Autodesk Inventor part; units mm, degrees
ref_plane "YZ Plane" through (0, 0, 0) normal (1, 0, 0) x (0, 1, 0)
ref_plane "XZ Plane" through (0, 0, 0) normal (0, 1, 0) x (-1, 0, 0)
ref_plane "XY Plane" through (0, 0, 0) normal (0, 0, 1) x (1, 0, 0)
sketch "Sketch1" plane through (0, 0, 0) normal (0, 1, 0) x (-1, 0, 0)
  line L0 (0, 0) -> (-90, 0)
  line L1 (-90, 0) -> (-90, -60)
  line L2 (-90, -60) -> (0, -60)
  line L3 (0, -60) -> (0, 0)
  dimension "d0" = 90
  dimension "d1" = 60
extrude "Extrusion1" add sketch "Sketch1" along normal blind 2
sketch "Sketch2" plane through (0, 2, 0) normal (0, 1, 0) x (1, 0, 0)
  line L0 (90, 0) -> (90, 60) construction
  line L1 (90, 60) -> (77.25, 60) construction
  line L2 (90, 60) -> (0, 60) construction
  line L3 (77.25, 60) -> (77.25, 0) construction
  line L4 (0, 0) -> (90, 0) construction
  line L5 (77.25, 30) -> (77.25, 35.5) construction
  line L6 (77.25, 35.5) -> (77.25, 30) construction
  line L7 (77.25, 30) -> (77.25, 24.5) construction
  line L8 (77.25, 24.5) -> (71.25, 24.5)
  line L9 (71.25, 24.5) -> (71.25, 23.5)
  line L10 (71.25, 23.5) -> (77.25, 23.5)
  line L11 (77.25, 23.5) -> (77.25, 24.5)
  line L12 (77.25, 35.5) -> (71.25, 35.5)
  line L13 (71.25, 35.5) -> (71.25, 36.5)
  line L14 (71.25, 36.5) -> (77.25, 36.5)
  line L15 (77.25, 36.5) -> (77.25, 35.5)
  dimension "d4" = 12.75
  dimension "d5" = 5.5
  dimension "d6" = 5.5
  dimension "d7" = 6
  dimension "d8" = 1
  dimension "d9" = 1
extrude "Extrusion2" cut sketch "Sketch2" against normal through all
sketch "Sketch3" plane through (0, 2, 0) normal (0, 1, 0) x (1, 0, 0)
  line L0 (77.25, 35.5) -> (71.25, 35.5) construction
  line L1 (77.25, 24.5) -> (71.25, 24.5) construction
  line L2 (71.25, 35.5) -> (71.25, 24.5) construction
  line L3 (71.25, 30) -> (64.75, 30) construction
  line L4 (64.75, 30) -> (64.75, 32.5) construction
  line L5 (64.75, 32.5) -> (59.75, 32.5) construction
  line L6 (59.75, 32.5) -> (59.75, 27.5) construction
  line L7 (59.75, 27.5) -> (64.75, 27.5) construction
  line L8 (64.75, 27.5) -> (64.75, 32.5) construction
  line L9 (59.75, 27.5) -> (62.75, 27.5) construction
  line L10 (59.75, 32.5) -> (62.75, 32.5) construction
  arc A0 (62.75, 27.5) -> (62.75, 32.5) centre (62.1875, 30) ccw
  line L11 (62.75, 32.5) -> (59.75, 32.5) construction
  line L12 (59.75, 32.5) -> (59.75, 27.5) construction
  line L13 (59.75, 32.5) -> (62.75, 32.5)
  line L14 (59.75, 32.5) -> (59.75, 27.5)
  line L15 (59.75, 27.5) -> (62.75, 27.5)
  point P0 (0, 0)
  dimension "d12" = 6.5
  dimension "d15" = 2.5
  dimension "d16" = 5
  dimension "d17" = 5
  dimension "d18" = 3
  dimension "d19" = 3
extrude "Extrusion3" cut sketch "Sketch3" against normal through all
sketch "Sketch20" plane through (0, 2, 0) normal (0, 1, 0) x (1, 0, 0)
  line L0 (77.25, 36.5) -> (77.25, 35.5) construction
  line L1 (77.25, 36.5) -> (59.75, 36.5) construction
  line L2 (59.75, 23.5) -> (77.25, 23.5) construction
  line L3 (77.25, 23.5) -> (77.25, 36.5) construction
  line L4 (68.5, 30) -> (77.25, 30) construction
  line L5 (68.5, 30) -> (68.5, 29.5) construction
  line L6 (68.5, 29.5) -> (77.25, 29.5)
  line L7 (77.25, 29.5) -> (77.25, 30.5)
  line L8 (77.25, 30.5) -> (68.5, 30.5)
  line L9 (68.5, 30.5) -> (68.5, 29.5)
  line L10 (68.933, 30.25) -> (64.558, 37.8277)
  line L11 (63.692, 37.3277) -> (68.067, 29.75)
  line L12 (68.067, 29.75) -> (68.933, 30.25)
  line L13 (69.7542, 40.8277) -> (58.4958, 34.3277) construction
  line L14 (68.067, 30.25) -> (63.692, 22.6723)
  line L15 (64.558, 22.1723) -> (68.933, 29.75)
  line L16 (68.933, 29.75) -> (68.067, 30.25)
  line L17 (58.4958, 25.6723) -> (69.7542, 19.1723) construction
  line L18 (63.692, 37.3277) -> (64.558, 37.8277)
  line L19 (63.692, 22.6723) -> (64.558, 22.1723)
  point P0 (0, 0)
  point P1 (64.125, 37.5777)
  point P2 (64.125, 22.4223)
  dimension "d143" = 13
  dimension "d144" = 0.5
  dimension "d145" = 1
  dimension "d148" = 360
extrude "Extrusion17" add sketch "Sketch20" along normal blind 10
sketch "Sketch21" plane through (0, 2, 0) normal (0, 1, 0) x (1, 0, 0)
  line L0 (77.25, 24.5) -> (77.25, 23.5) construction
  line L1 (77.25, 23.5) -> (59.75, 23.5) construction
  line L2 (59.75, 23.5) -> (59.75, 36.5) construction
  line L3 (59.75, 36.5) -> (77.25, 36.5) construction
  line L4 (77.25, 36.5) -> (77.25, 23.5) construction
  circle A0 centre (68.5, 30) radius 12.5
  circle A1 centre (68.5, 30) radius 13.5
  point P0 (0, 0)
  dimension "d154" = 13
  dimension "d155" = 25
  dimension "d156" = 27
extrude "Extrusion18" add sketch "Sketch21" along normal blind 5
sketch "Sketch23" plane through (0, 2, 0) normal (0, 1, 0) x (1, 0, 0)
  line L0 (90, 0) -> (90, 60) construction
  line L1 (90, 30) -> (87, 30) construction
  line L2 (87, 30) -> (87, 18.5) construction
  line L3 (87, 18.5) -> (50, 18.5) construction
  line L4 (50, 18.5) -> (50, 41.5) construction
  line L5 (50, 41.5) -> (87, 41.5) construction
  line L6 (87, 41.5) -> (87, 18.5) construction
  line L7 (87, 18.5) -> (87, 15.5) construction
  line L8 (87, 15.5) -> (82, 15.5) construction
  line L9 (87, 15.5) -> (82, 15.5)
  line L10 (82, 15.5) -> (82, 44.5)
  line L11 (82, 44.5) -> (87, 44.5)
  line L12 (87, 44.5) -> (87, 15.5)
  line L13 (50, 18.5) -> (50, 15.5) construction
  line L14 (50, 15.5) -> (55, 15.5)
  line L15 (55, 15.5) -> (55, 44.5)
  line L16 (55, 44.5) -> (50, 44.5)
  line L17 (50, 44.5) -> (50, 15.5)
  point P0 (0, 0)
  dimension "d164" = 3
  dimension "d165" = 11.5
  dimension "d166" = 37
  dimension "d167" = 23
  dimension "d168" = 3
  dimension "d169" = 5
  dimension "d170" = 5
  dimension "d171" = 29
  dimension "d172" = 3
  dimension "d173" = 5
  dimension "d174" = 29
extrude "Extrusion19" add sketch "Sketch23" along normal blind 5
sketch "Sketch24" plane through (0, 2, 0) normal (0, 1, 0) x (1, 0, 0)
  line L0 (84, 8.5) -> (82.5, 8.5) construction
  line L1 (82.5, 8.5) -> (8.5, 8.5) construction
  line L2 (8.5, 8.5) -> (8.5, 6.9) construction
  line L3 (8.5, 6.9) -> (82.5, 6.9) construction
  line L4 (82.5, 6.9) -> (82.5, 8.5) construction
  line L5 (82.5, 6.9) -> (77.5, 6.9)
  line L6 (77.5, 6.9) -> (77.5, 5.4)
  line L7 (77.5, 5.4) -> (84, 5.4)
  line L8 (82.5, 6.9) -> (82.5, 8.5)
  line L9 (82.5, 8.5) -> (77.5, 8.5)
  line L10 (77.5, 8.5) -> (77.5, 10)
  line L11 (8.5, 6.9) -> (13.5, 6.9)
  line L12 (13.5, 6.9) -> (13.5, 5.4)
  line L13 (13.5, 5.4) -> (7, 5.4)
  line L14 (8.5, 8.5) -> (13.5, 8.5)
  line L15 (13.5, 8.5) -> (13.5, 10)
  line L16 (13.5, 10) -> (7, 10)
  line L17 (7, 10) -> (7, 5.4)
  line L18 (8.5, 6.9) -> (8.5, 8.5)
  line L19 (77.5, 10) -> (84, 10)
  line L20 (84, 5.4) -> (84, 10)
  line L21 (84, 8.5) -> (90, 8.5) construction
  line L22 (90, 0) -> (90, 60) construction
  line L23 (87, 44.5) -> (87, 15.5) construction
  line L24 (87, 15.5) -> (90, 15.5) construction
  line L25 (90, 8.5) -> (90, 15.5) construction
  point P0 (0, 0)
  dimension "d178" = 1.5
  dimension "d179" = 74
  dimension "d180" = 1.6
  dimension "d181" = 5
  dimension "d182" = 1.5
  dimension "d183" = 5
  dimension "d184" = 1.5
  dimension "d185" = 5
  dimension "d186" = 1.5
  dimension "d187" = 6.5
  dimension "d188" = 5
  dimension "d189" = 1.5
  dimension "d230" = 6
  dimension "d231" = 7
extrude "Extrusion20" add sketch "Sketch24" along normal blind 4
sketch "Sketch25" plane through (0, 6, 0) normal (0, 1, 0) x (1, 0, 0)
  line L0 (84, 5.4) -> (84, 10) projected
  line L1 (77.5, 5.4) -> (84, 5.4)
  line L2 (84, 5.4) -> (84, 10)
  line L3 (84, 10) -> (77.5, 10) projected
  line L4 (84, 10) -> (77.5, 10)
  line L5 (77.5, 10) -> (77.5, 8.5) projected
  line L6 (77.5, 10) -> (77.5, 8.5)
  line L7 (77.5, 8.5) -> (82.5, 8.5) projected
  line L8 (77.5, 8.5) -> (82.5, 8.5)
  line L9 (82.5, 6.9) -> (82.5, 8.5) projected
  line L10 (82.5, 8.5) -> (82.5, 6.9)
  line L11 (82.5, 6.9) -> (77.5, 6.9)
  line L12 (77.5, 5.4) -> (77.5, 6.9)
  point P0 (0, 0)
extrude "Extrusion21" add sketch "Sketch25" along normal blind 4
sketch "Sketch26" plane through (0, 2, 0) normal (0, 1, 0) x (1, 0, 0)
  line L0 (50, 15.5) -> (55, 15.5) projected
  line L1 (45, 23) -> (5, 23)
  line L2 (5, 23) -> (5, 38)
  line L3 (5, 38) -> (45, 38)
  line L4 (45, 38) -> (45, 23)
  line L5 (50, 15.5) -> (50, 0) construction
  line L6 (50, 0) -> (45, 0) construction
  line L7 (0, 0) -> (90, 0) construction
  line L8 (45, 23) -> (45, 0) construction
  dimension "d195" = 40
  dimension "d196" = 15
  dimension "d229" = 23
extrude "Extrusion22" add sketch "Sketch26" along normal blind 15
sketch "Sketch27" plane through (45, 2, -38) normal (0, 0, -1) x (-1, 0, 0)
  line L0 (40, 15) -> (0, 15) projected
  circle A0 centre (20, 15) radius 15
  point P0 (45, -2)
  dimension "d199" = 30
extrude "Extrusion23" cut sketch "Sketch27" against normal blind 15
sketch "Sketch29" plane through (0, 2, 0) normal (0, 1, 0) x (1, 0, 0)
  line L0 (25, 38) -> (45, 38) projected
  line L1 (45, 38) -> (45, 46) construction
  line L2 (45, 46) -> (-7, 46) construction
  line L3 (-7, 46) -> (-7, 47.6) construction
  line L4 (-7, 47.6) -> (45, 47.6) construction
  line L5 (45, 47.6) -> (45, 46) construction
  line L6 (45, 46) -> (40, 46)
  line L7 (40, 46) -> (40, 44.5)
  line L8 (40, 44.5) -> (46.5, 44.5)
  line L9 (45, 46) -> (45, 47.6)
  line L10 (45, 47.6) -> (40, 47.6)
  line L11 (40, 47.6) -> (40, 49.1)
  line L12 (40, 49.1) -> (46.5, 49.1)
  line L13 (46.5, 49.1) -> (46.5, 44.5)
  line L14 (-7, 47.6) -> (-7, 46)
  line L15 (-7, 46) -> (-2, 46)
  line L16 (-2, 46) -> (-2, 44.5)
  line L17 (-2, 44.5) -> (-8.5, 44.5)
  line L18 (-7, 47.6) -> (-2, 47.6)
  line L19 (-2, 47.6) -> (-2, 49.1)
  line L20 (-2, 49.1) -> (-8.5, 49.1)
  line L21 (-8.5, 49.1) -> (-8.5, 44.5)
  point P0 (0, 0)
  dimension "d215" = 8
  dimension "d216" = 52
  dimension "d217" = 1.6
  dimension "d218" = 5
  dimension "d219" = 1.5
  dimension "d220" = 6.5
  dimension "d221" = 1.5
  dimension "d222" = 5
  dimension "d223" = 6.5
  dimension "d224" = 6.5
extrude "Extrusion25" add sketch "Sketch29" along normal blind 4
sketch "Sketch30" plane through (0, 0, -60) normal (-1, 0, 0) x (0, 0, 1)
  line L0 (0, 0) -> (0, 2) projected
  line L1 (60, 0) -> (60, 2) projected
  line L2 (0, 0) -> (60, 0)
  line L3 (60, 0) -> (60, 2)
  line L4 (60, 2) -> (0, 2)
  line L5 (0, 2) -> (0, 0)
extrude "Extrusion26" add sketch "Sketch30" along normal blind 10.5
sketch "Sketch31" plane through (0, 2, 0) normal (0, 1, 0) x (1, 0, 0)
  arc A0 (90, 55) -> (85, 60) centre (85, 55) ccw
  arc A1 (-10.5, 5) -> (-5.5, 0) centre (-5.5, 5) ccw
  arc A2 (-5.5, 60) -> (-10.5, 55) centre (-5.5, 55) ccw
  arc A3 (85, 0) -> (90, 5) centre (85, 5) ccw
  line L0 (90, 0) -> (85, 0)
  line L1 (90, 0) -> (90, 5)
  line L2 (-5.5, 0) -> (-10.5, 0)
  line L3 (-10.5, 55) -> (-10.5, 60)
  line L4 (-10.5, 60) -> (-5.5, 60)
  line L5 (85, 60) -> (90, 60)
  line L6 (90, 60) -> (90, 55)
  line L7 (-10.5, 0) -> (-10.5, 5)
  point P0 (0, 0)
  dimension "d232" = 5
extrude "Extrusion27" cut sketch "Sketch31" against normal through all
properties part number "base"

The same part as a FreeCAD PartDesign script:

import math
import FreeCAD as App
import Part
import Sketcher

doc = App.newDocument("Part")
params = doc.addObject("Spreadsheet::Sheet", "Params")
for row, (alias, value) in enumerate([
    ("sketch1_width", "90 mm"),
    ("sketch1_height", "60 mm"),
    ("pad1_length", "2 mm"),
    ("sketch2_width", "6 mm"),
    ("sketch2_height", "1 mm"),
    ("sketch3_width", "3 mm"),
    ("sketch3_height", "5 mm"),
    ("sketch4_height", "1 mm"),
    ("sketch4_length", "1 mm"),
    ("pad2_length", "10 mm"),
    ("sketch5_diameter", "27 mm"),
    ("sketch5_diameter2", "25 mm"),
    ("pad3_length", "5 mm"),
    ("sketch6_width", "5 mm"),
    ("sketch6_height", "29 mm"),
    ("pad4_length", "5 mm"),
    ("sketch7_width", "5 mm"),
    ("sketch7_width2", "6.5 mm"),
    ("sketch7_height", "1.6 mm"),
    ("sketch7_height2", "1.5 mm"),
    ("pad5_length", "4 mm"),
    ("sketch8_width", "5 mm"),
    ("sketch8_width2", "6.5 mm"),
    ("sketch8_height", "4.6 mm"),
    ("sketch8_height2", "1.5 mm"),
    ("pad6_length", "4 mm"),
    ("sketch9_width", "40 mm"),
    ("sketch9_height", "15 mm"),
    ("pad7_length", "15 mm"),
    ("sketch10_diameter", "30 mm"),
    ("pocket3_length", "15 mm"),
    ("sketch11_width", "5 mm"),
    ("sketch11_width2", "6.5 mm"),
    ("sketch11_height", "1.6 mm"),
    ("sketch11_height2", "1.5 mm"),
    ("pad8_length", "4 mm"),
    ("sketch12_width", "2 mm"),
    ("sketch12_height", "60 mm"),
    ("pad9_length", "10.5 mm"),
    ("sketch13_radius", "5 mm"),
], start=1):
    params.set(f"A{row}", alias)
    params.set(f"B{row}", "=" + value)
    params.setAlias(f"B{row}", alias)

body = doc.addObject("PartDesign::Body", "Body")
body.AllowCompound = True

# Sketch on XZ plane
sketch1 = body.newObject("Sketcher::SketchObject", "Sketch")
sketch1.AttachmentSupport = (doc.getObject("XZ_Plane"), [""])
sketch1.MapMode = "FlatFace"
sketch1.addGeometry([
    Part.LineSegment(App.Vector(0, -60, 0), App.Vector(0, 0, 0)),
    Part.LineSegment(App.Vector(0, 0, 0), App.Vector(90, 0, 0)),
    Part.LineSegment(App.Vector(90, 0, 0), App.Vector(90, -60, 0)),
    Part.LineSegment(App.Vector(90, -60, 0), App.Vector(0, -60, 0)),
], False)
sketch1.addConstraint([
    Sketcher.Constraint("Coincident", 0, 2, 1, 1),
    Sketcher.Constraint("Coincident", 1, 2, 2, 1),
    Sketcher.Constraint("Coincident", 2, 2, 3, 1),
    Sketcher.Constraint("Coincident", 3, 2, 0, 1),
    Sketcher.Constraint("Vertical", 0),
    Sketcher.Constraint("Horizontal", 1),
    Sketcher.Constraint("Vertical", 2),
    Sketcher.Constraint("Horizontal", 3),
    Sketcher.Constraint("Coincident", 0, 2, -1, 1),
    Sketcher.Constraint("DistanceX", 1, 1, 1, 2, 90.0),
    Sketcher.Constraint("DistanceY", 0, 1, 0, 2, 60.0),
])
sketch1.setExpression("Constraints[9]", "Params.sketch1_width")
sketch1.setExpression("Constraints[10]", "Params.sketch1_height")
pad1 = body.newObject("PartDesign::Pad", "Pad")
pad1.Profile = sketch1
pad1.setExpression("Length", "Params.pad1_length")
pad1.Reversed = True

# Sketch on XZ plane
sketch2 = body.newObject("Sketcher::SketchObject", "Sketch001")
sketch2.AttachmentSupport = (doc.getObject("XZ_Plane"), [""])
sketch2.MapMode = "FlatFace"
sketch2.AttachmentOffset = App.Placement(App.Vector(0, 0, -2), App.Rotation())
sketch2.addGeometry([
    Part.LineSegment(App.Vector(77.2, -23.5, 0), App.Vector(77.2, -24.5, 0)),  # 0
    Part.LineSegment(App.Vector(77.2, -24.5, 0), App.Vector(71.2, -24.5, 0)),  # 1
    Part.LineSegment(App.Vector(71.2, -24.5, 0), App.Vector(71.2, -23.5, 0)),  # 2
    Part.LineSegment(App.Vector(71.2, -23.5, 0), App.Vector(77.2, -23.5, 0)),  # 3
    Part.LineSegment(App.Vector(71.2, -35.5, 0), App.Vector(77.2, -35.5, 0)),  # 4
    Part.LineSegment(App.Vector(77.2, -35.5, 0), App.Vector(77.2, -36.5, 0)),  # 5
    Part.LineSegment(App.Vector(77.2, -36.5, 0), App.Vector(71.2, -36.5, 0)),  # 6
    Part.LineSegment(App.Vector(71.2, -36.5, 0), App.Vector(71.2, -35.5, 0)),  # 7
], False)
sketch2.addConstraint([
    Sketcher.Constraint("Coincident", 0, 2, 1, 1),
    Sketcher.Constraint("Coincident", 1, 2, 2, 1),
    Sketcher.Constraint("Coincident", 2, 2, 3, 1),
    Sketcher.Constraint("Coincident", 3, 2, 0, 1),
    Sketcher.Constraint("Coincident", 4, 2, 5, 1),
    Sketcher.Constraint("Coincident", 5, 2, 6, 1),
    Sketcher.Constraint("Coincident", 6, 2, 7, 1),
    Sketcher.Constraint("Coincident", 7, 2, 4, 1),
    Sketcher.Constraint("Vertical", 0),
    Sketcher.Constraint("Horizontal", 1),
    Sketcher.Constraint("Vertical", 2),
    Sketcher.Constraint("Horizontal", 3),
    Sketcher.Constraint("Horizontal", 4),
    Sketcher.Constraint("Vertical", 5),
    Sketcher.Constraint("Horizontal", 6),
    Sketcher.Constraint("Vertical", 7),
    Sketcher.Constraint("Vertical", 3, 2, 4, 2),
    Sketcher.Constraint("Vertical", 2, 2, 6, 2),
    Sketcher.Constraint("Equal", 2, 5),
    Sketcher.Constraint("DistanceX", 1, 2, 1, 1, 6.0),
    Sketcher.Constraint("DistanceY", 0, 2, 0, 1, 1.0),
    Sketcher.Constraint("DistanceY", 4, 2, 0, 2, 11.0),
    Sketcher.Constraint("DistanceY", 0, 2, -1, 1, 24.5),
    Sketcher.Constraint("DistanceX", -1, 1, 0, 2, 77.25),
])
sketch2.setExpression("Constraints[19]", "Params.sketch2_width")
sketch2.setExpression("Constraints[20]", "Params.sketch2_height")
pocket1 = body.newObject("PartDesign::Pocket", "Pocket")
pocket1.Profile = sketch2
pocket1.Type = "ThroughAll"
pocket1.Reversed = True

# Sketch on XZ plane
sketch3 = body.newObject("Sketcher::SketchObject", "Sketch002")
sketch3.AttachmentSupport = (doc.getObject("XZ_Plane"), [""])
sketch3.MapMode = "FlatFace"
sketch3.AttachmentOffset = App.Placement(App.Vector(0, 0, -2), App.Rotation())
sketch3.addGeometry([
    Part.LineSegment(App.Vector(59.8, -27.5, 0), App.Vector(62.8, -27.5, 0)),
    Part.ArcOfCircle(Part.Circle(App.Vector(62.2, -30, 0), App.Vector(0, 0, 1), 2.6), math.radians(-77), math.radians(77)),
    Part.LineSegment(App.Vector(62.8, -32.5, 0), App.Vector(59.8, -32.5, 0)),
    Part.LineSegment(App.Vector(59.8, -32.5, 0), App.Vector(59.8, -27.5, 0)),
], False)
sketch3.addConstraint([
    Sketcher.Constraint("Coincident", 0, 2, 1, 2),
    Sketcher.Constraint("Coincident", 1, 1, 2, 1),
    Sketcher.Constraint("Coincident", 2, 2, 3, 1),
    Sketcher.Constraint("Coincident", 3, 2, 0, 1),
    Sketcher.Constraint("Horizontal", 0),
    Sketcher.Constraint("Horizontal", 2),
    Sketcher.Constraint("Vertical", 3),
    Sketcher.Constraint("Vertical", 0, 2, 1, 1),
    Sketcher.Constraint("DistanceX", 0, 1, 0, 2, 3.0),
    Sketcher.Constraint("DistanceY", 3, 1, 3, 2, 5.0),
    Sketcher.Constraint("DistanceY", 1, 3, -1, 1, 30.0),
    Sketcher.Constraint("Radius", 1, 2.5625),
    Sketcher.Constraint("DistanceX", -1, 1, 0, 2, 62.75),
])
sketch3.setExpression("Constraints[8]", "Params.sketch3_width")
sketch3.setExpression("Constraints[9]", "Params.sketch3_height")
pocket2 = body.newObject("PartDesign::Pocket", "Pocket001")
pocket2.Profile = sketch3
pocket2.Type = "ThroughAll"
pocket2.Reversed = True

# Sketch on XZ plane
sketch4 = body.newObject("Sketcher::SketchObject", "Sketch003")
sketch4.AttachmentSupport = (doc.getObject("XZ_Plane"), [""])
sketch4.MapMode = "FlatFace"
sketch4.AttachmentOffset = App.Placement(App.Vector(0, 0, -2), App.Rotation())
sketch4.addGeometry([
    Part.LineSegment(App.Vector(64.6, -22.2, 0), App.Vector(68.8, -29.5, 0)),  # 0
    Part.LineSegment(App.Vector(68.8, -29.5, 0), App.Vector(77.2, -29.5, 0)),  # 1
    Part.LineSegment(App.Vector(77.2, -29.5, 0), App.Vector(77.2, -30.5, 0)),  # 2
    Part.LineSegment(App.Vector(77.2, -30.5, 0), App.Vector(68.8, -30.5, 0)),  # 3
    Part.LineSegment(App.Vector(68.8, -30.5, 0), App.Vector(64.6, -37.8, 0)),  # 4
    Part.LineSegment(App.Vector(64.6, -37.8, 0), App.Vector(63.7, -37.3, 0)),  # 5
    Part.LineSegment(App.Vector(63.7, -37.3, 0), App.Vector(67.9, -30, 0)),  # 6
    Part.LineSegment(App.Vector(67.9, -30, 0), App.Vector(63.7, -22.7, 0)),  # 7
    Part.LineSegment(App.Vector(63.7, -22.7, 0), App.Vector(64.6, -22.2, 0)),  # 8
], False)
sketch4.addConstraint([
    Sketcher.Constraint("Coincident", 0, 2, 1, 1),
    Sketcher.Constraint("Coincident", 1, 2, 2, 1),
    Sketcher.Constraint("Coincident", 2, 2, 3, 1),
    Sketcher.Constraint("Coincident", 3, 2, 4, 1),
    Sketcher.Constraint("Coincident", 4, 2, 5, 1),
    Sketcher.Constraint("Coincident", 5, 2, 6, 1),
    Sketcher.Constraint("Coincident", 6, 2, 7, 1),
    Sketcher.Constraint("Coincident", 7, 2, 8, 1),
    Sketcher.Constraint("Coincident", 8, 2, 0, 1),
    Sketcher.Constraint("Horizontal", 1),
    Sketcher.Constraint("Vertical", 2),
    Sketcher.Constraint("Horizontal", 3),
    Sketcher.Constraint("Perpendicular", 4, 5),
    Sketcher.Constraint("Perpendicular", 5, 6),
    Sketcher.Constraint("Parallel", 0, 7),
    Sketcher.Constraint("Perpendicular", 7, 8),
    Sketcher.Constraint("Vertical", 0, 2, 3, 2),
    Sketcher.Constraint("Vertical", 5, 2, 7, 2),
    Sketcher.Constraint("Vertical", 4, 2, 8, 2),
    Sketcher.Constraint("Equal", 0, 4),
    Sketcher.Constraint("Equal", 4, 6),
    Sketcher.Constraint("DistanceY", 2, 2, 2, 1, 1.0),
    Sketcher.Constraint("Distance", 5, 1.0),
    Sketcher.Constraint("DistanceY", 6, 2, -1, 1, 30.0),
    Sketcher.Constraint("DistanceX", -1, 1, 1, 2, 77.25),
    Sketcher.Constraint("DistanceX", 1, 1, 1, 2, 8.4613),
    Sketcher.Constraint("DistanceX", -1, 1, 4, 2, 64.558),
])
sketch4.setExpression("Constraints[21]", "Params.sketch4_height")
sketch4.setExpression("Constraints[22]", "Params.sketch4_length")
pad2 = body.newObject("PartDesign::Pad", "Pad001")
pad2.Profile = sketch4
pad2.setExpression("Length", "Params.pad2_length")
pad2.Reversed = True

# Sketch on XZ plane
sketch5 = body.newObject("Sketcher::SketchObject", "Sketch004")
sketch5.AttachmentSupport = (doc.getObject("XZ_Plane"), [""])
sketch5.MapMode = "FlatFace"
sketch5.AttachmentOffset = App.Placement(App.Vector(0, 0, -2), App.Rotation())
sketch5.addGeometry([
    Part.Circle(App.Vector(68, -30, 0), App.Vector(0, 0, 1), 14),
    Part.Circle(App.Vector(68, -30, 0), App.Vector(0, 0, 1), 12),
], False)
sketch5.addConstraint([
    Sketcher.Constraint("Coincident", 1, 3, 0, 3),
    Sketcher.Constraint("Diameter", 0, 27.0),
    Sketcher.Constraint("Diameter", 1, 25.0),
    Sketcher.Constraint("DistanceY", 0, 3, -1, 1, 30.0),
    Sketcher.Constraint("DistanceX", -1, 1, 0, 3, 68.5),
])
sketch5.setExpression("Constraints[1]", "Params.sketch5_diameter")
sketch5.setExpression("Constraints[2]", "Params.sketch5_diameter2")
pad3 = body.newObject("PartDesign::Pad", "Pad002")
pad3.Profile = sketch5
pad3.setExpression("Length", "Params.pad3_length")
pad3.Reversed = True

# Sketch on XZ plane
sketch6 = body.newObject("Sketcher::SketchObject", "Sketch005")
sketch6.AttachmentSupport = (doc.getObject("XZ_Plane"), [""])
sketch6.MapMode = "FlatFace"
sketch6.AttachmentOffset = App.Placement(App.Vector(0, 0, -2), App.Rotation())
sketch6.addGeometry([
    Part.LineSegment(App.Vector(82, -16, 0), App.Vector(87, -16, 0)),  # 0
    Part.LineSegment(App.Vector(87, -16, 0), App.Vector(87, -44, 0)),  # 1
    Part.LineSegment(App.Vector(87, -44, 0), App.Vector(82, -44, 0)),  # 2
    Part.LineSegment(App.Vector(82, -44, 0), App.Vector(82, -16, 0)),  # 3
    Part.LineSegment(App.Vector(50, -44, 0), App.Vector(50, -16, 0)),  # 4
    Part.LineSegment(App.Vector(50, -16, 0), App.Vector(55, -16, 0)),  # 5
    Part.LineSegment(App.Vector(55, -16, 0), App.Vector(55, -44, 0)),  # 6
    Part.LineSegment(App.Vector(55, -44, 0), App.Vector(50, -44, 0)),  # 7
], False)
sketch6.addConstraint([
    Sketcher.Constraint("Coincident", 0, 2, 1, 1),
    Sketcher.Constraint("Coincident", 1, 2, 2, 1),
    Sketcher.Constraint("Coincident", 2, 2, 3, 1),
    Sketcher.Constraint("Coincident", 3, 2, 0, 1),
    Sketcher.Constraint("Coincident", 4, 2, 5, 1),
    Sketcher.Constraint("Coincident", 5, 2, 6, 1),
    Sketcher.Constraint("Coincident", 6, 2, 7, 1),
    Sketcher.Constraint("Coincident", 7, 2, 4, 1),
    Sketcher.Constraint("Horizontal", 0),
    Sketcher.Constraint("Vertical", 1),
    Sketcher.Constraint("Horizontal", 2),
    Sketcher.Constraint("Vertical", 3),
    Sketcher.Constraint("Vertical", 4),
    Sketcher.Constraint("Horizontal", 5),
    Sketcher.Constraint("Vertical", 6),
    Sketcher.Constraint("Horizontal", 7),
    Sketcher.Constraint("Horizontal", 3, 2, 4, 2),
    Sketcher.Constraint("Horizontal", 2, 2, 6, 2),
    Sketcher.Constraint("Equal", 2, 5),
    Sketcher.Constraint("DistanceX", 0, 1, 0, 2, 5.0),
    Sketcher.Constraint("DistanceY", 1, 2, 1, 1, 29.0),
    Sketcher.Constraint("DistanceX", 4, 2, 0, 2, 37.0),
    Sketcher.Constraint("DistanceX", -1, 1, 0, 2, 87.0),
    Sketcher.Constraint("DistanceY", 0, 2, -1, 1, 15.5),
])
sketch6.setExpression("Constraints[19]", "Params.sketch6_width")
sketch6.setExpression("Constraints[20]", "Params.sketch6_height")
pad4 = body.newObject("PartDesign::Pad", "Pad003")
pad4.Profile = sketch6
pad4.setExpression("Length", "Params.pad4_length")
pad4.Reversed = True

# Sketch on XZ plane
sketch7 = body.newObject("Sketcher::SketchObject", "Sketch006")
sketch7.AttachmentSupport = (doc.getObject("XZ_Plane"), [""])
sketch7.MapMode = "FlatFace"
sketch7.AttachmentOffset = App.Placement(App.Vector(0, 0, -2), App.Rotation())
sketch7.addGeometry([
    Part.LineSegment(App.Vector(82.5, -8.5, 0), App.Vector(82.5, -6.9, 0)),  # 0
    Part.LineSegment(App.Vector(82.5, -6.9, 0), App.Vector(77.5, -6.9, 0)),  # 1
    Part.LineSegment(App.Vector(77.5, -6.9, 0), App.Vector(77.5, -5.4, 0)),  # 2
    Part.LineSegment(App.Vector(77.5, -5.4, 0), App.Vector(84, -5.4, 0)),  # 3
    Part.LineSegment(App.Vector(84, -5.4, 0), App.Vector(84, -10, 0)),  # 4
    Part.LineSegment(App.Vector(84, -10, 0), App.Vector(77.5, -10, 0)),  # 5
    Part.LineSegment(App.Vector(77.5, -10, 0), App.Vector(77.5, -8.5, 0)),  # 6
    Part.LineSegment(App.Vector(77.5, -8.5, 0), App.Vector(82.5, -8.5, 0)),  # 7
    Part.LineSegment(App.Vector(13.5, -6.9, 0), App.Vector(8.5, -6.9, 0)),  # 8
    Part.LineSegment(App.Vector(8.5, -6.9, 0), App.Vector(8.5, -8.5, 0)),  # 9
    Part.LineSegment(App.Vector(8.5, -8.5, 0), App.Vector(13.5, -8.5, 0)),  # 10
    Part.LineSegment(App.Vector(13.5, -8.5, 0), App.Vector(13.5, -10, 0)),  # 11
    Part.LineSegment(App.Vector(13.5, -10, 0), App.Vector(7, -10, 0)),  # 12
    Part.LineSegment(App.Vector(7, -10, 0), App.Vector(7, -5.4, 0)),  # 13
    Part.LineSegment(App.Vector(7, -5.4, 0), App.Vector(13.5, -5.4, 0)),  # 14
    Part.LineSegment(App.Vector(13.5, -5.4, 0), App.Vector(13.5, -6.9, 0)),  # 15
], False)
sketch7.addConstraint([
    Sketcher.Constraint("Coincident", 0, 2, 1, 1),
    Sketcher.Constraint("Coincident", 1, 2, 2, 1),
    Sketcher.Constraint("Coincident", 2, 2, 3, 1),
    Sketcher.Constraint("Coincident", 3, 2, 4, 1),
    Sketcher.Constraint("Coincident", 4, 2, 5, 1),
    Sketcher.Constraint("Coincident", 5, 2, 6, 1),
    Sketcher.Constraint("Coincident", 6, 2, 7, 1),
    Sketcher.Constraint("Coincident", 7, 2, 0, 1),
    Sketcher.Constraint("Coincident", 8, 2, 9, 1),
    Sketcher.Constraint("Coincident", 9, 2, 10, 1),
    Sketcher.Constraint("Coincident", 10, 2, 11, 1),
    Sketcher.Constraint("Coincident", 11, 2, 12, 1),
    Sketcher.Constraint("Coincident", 12, 2, 13, 1),
    Sketcher.Constraint("Coincident", 13, 2, 14, 1),
    Sketcher.Constraint("Coincident", 14, 2, 15, 1),
    Sketcher.Constraint("Coincident", 15, 2, 8, 1),
    Sketcher.Constraint("Vertical", 0),
    Sketcher.Constraint("Horizontal", 1),
    Sketcher.Constraint("Vertical", 2),
    Sketcher.Constraint("Horizontal", 3),
    Sketcher.Constraint("Vertical", 4),
    Sketcher.Constraint("Horizontal", 5),
    Sketcher.Constraint("Vertical", 6),
    Sketcher.Constraint("Horizontal", 7),
    Sketcher.Constraint("Horizontal", 8),
    Sketcher.Constraint("Vertical", 9),
    Sketcher.Constraint("Horizontal", 10),
    Sketcher.Constraint("Vertical", 11),
    Sketcher.Constraint("Horizontal", 12),
    Sketcher.Constraint("Vertical", 13),
    Sketcher.Constraint("Horizontal", 14),
    Sketcher.Constraint("Vertical", 15),
    Sketcher.Constraint("Horizontal", 1, 2, 8, 2),
    Sketcher.Constraint("Horizontal", 7, 2, 9, 2),
    Sketcher.Constraint("Horizontal", 5, 2, 11, 2),
    Sketcher.Constraint("Horizontal", 3, 2, 13, 2),
    Sketcher.Constraint("Vertical", 2, 2, 5, 2),
    Sketcher.Constraint("Vertical", 11, 2, 14, 2),
    Sketcher.Constraint("Equal", 7, 8),
    Sketcher.Constraint("Equal", 5, 12),
    Sketcher.Constraint("Equal", 2, 6),
    Sketcher.Constraint("DistanceX", 1, 2, 1, 1, 5.0),
    Sketcher.Constraint("DistanceX", 3, 1, 3, 2, 6.5),
    Sketcher.Constraint("DistanceY", 0, 1, 0, 2, 1.6),
    Sketcher.Constraint("DistanceY", 2, 1, 2, 2, 1.5),
    Sketcher.Constraint("DistanceX", -1, 1, 12, 2, 7.0),
    Sketcher.Constraint("DistanceX", 8, 2, 0, 2, 74.0),
    Sketcher.Constraint("DistanceY", 4, 2, -1, 1, 10.0),
])
sketch7.setExpression("Constraints[41]", "Params.sketch7_width")
sketch7.setExpression("Constraints[42]", "Params.sketch7_width2")
sketch7.setExpression("Constraints[43]", "Params.sketch7_height")
sketch7.setExpression("Constraints[44]", "Params.sketch7_height2")
pad5 = body.newObject("PartDesign::Pad", "Pad004")
pad5.Profile = sketch7
pad5.setExpression("Length", "Params.pad5_length")
pad5.Reversed = True

# Sketch on XZ plane
sketch8 = body.newObject("Sketcher::SketchObject", "Sketch007")
sketch8.AttachmentSupport = (doc.getObject("XZ_Plane"), [""])
sketch8.MapMode = "FlatFace"
sketch8.AttachmentOffset = App.Placement(App.Vector(0, 0, -6), App.Rotation())
sketch8.addGeometry([
    Part.LineSegment(App.Vector(77.5, -5.4, 0), App.Vector(84, -5.4, 0)),  # 0
    Part.LineSegment(App.Vector(84, -5.4, 0), App.Vector(84, -10, 0)),  # 1
    Part.LineSegment(App.Vector(84, -10, 0), App.Vector(77.5, -10, 0)),  # 2
    Part.LineSegment(App.Vector(77.5, -10, 0), App.Vector(77.5, -8.5, 0)),  # 3
    Part.LineSegment(App.Vector(77.5, -8.5, 0), App.Vector(82.5, -8.5, 0)),  # 4
    Part.LineSegment(App.Vector(82.5, -8.5, 0), App.Vector(82.5, -6.9, 0)),  # 5
    Part.LineSegment(App.Vector(82.5, -6.9, 0), App.Vector(77.5, -6.9, 0)),  # 6
    Part.LineSegment(App.Vector(77.5, -6.9, 0), App.Vector(77.5, -5.4, 0)),  # 7
], False)
sketch8.addConstraint([
    Sketcher.Constraint("Coincident", 0, 2, 1, 1),
    Sketcher.Constraint("Coincident", 1, 2, 2, 1),
    Sketcher.Constraint("Coincident", 2, 2, 3, 1),
    Sketcher.Constraint("Coincident", 3, 2, 4, 1),
    Sketcher.Constraint("Coincident", 4, 2, 5, 1),
    Sketcher.Constraint("Coincident", 5, 2, 6, 1),
    Sketcher.Constraint("Coincident", 6, 2, 7, 1),
    Sketcher.Constraint("Coincident", 7, 2, 0, 1),
    Sketcher.Constraint("Horizontal", 0),
    Sketcher.Constraint("Vertical", 1),
    Sketcher.Constraint("Horizontal", 2),
    Sketcher.Constraint("Vertical", 3),
    Sketcher.Constraint("Horizontal", 4),
    Sketcher.Constraint("Vertical", 5),
    Sketcher.Constraint("Horizontal", 6),
    Sketcher.Constraint("Vertical", 7),
    Sketcher.Constraint("Vertical", 3, 2, 6, 2),
    Sketcher.Constraint("Equal", 3, 7),
    Sketcher.Constraint("DistanceX", 4, 1, 4, 2, 5.0),
    Sketcher.Constraint("DistanceX", 0, 1, 0, 2, 6.5),
    Sketcher.Constraint("DistanceY", 1, 2, 1, 1, 4.6),
    Sketcher.Constraint("DistanceY", 3, 1, 3, 2, 1.5),
    Sketcher.Constraint("DistanceX", -1, 1, 0, 2, 84.0),
    Sketcher.Constraint("DistanceY", 1, 2, -1, 1, 10.0),
])
sketch8.setExpression("Constraints[18]", "Params.sketch8_width")
sketch8.setExpression("Constraints[19]", "Params.sketch8_width2")
sketch8.setExpression("Constraints[20]", "Params.sketch8_height")
sketch8.setExpression("Constraints[21]", "Params.sketch8_height2")
pad6 = body.newObject("PartDesign::Pad", "Pad005")
pad6.Profile = sketch8
pad6.setExpression("Length", "Params.pad6_length")
pad6.Reversed = True

# Sketch on XZ plane
sketch9 = body.newObject("Sketcher::SketchObject", "Sketch008")
sketch9.AttachmentSupport = (doc.getObject("XZ_Plane"), [""])
sketch9.MapMode = "FlatFace"
sketch9.AttachmentOffset = App.Placement(App.Vector(0, 0, -2), App.Rotation())
sketch9.addGeometry([
    Part.LineSegment(App.Vector(5, -23, 0), App.Vector(45, -23, 0)),
    Part.LineSegment(App.Vector(45, -23, 0), App.Vector(45, -38, 0)),
    Part.LineSegment(App.Vector(45, -38, 0), App.Vector(5, -38, 0)),
    Part.LineSegment(App.Vector(5, -38, 0), App.Vector(5, -23, 0)),
], False)
sketch9.addConstraint([
    Sketcher.Constraint("Coincident", 0, 2, 1, 1),
    Sketcher.Constraint("Coincident", 1, 2, 2, 1),
    Sketcher.Constraint("Coincident", 2, 2, 3, 1),
    Sketcher.Constraint("Coincident", 3, 2, 0, 1),
    Sketcher.Constraint("Horizontal", 0),
    Sketcher.Constraint("Vertical", 1),
    Sketcher.Constraint("Horizontal", 2),
    Sketcher.Constraint("Vertical", 3),
    Sketcher.Constraint("DistanceX", 0, 1, 0, 2, 40.0),
    Sketcher.Constraint("DistanceY", 1, 2, 1, 1, 15.0),
    Sketcher.Constraint("DistanceY", 0, 2, -1, 1, 23.0),
    Sketcher.Constraint("DistanceX", -1, 1, 0, 2, 45.0),
])
sketch9.setExpression("Constraints[8]", "Params.sketch9_width")
sketch9.setExpression("Constraints[9]", "Params.sketch9_height")
pad7 = body.newObject("PartDesign::Pad", "Pad006")
pad7.Profile = sketch9
pad7.setExpression("Length", "Params.pad7_length")
pad7.Reversed = True

# Sketch on XY plane
sketch10 = body.newObject("Sketcher::SketchObject", "Sketch009")
sketch10.AttachmentSupport = (doc.getObject("XY_Plane"), [""])
sketch10.MapMode = "FlatFace"
sketch10.AttachmentOffset = App.Placement(App.Vector(0, 0, -38), App.Rotation())
sketch10.addGeometry(Part.Circle(App.Vector(25, 17, 0), App.Vector(0, 0, 1), 15), False)
sketch10.addConstraint([
    Sketcher.Constraint("Diameter", 0, 30.0),
    Sketcher.Constraint("DistanceX", -1, 1, 0, 3, 25.0),
    Sketcher.Constraint("DistanceY", -1, 1, 0, 3, 17.0),
])
sketch10.setExpression("Constraints[0]", "Params.sketch10_diameter")
pocket3 = body.newObject("PartDesign::Pocket", "Pocket002")
pocket3.Profile = sketch10
pocket3.setExpression("Length", "Params.pocket3_length")
pocket3.Reversed = True

# Sketch on XZ plane
sketch11 = body.newObject("Sketcher::SketchObject", "Sketch010")
sketch11.AttachmentSupport = (doc.getObject("XZ_Plane"), [""])
sketch11.MapMode = "FlatFace"
sketch11.AttachmentOffset = App.Placement(App.Vector(0, 0, -2), App.Rotation())
sketch11.addGeometry([
    Part.LineSegment(App.Vector(45, -47.6, 0), App.Vector(45, -46, 0)),  # 0
    Part.LineSegment(App.Vector(45, -46, 0), App.Vector(40, -46, 0)),  # 1
    Part.LineSegment(App.Vector(40, -46, 0), App.Vector(40, -44.5, 0)),  # 2
    Part.LineSegment(App.Vector(40, -44.5, 0), App.Vector(46.5, -44.5, 0)),  # 3
    Part.LineSegment(App.Vector(46.5, -44.5, 0), App.Vector(46.5, -49.1, 0)),  # 4
    Part.LineSegment(App.Vector(46.5, -49.1, 0), App.Vector(40, -49.1, 0)),  # 5
    Part.LineSegment(App.Vector(40, -49.1, 0), App.Vector(40, -47.6, 0)),  # 6
    Part.LineSegment(App.Vector(40, -47.6, 0), App.Vector(45, -47.6, 0)),  # 7
    Part.LineSegment(App.Vector(-7, -46, 0), App.Vector(-7, -47.6, 0)),  # 8
    Part.LineSegment(App.Vector(-7, -47.6, 0), App.Vector(-2, -47.6, 0)),  # 9
    Part.LineSegment(App.Vector(-2, -47.6, 0), App.Vector(-2, -49.1, 0)),  # 10
    Part.LineSegment(App.Vector(-2, -49.1, 0), App.Vector(-8.5, -49.1, 0)),  # 11
    Part.LineSegment(App.Vector(-8.5, -49.1, 0), App.Vector(-8.5, -44.5, 0)),  # 12
    Part.LineSegment(App.Vector(-8.5, -44.5, 0), App.Vector(-2, -44.5, 0)),  # 13
    Part.LineSegment(App.Vector(-2, -44.5, 0), App.Vector(-2, -46, 0)),  # 14
    Part.LineSegment(App.Vector(-2, -46, 0), App.Vector(-7, -46, 0)),  # 15
], False)
sketch11.addConstraint([
    Sketcher.Constraint("Coincident", 0, 2, 1, 1),
    Sketcher.Constraint("Coincident", 1, 2, 2, 1),
    Sketcher.Constraint("Coincident", 2, 2, 3, 1),
    Sketcher.Constraint("Coincident", 3, 2, 4, 1),
    Sketcher.Constraint("Coincident", 4, 2, 5, 1),
    Sketcher.Constraint("Coincident", 5, 2, 6, 1),
    Sketcher.Constraint("Coincident", 6, 2, 7, 1),
    Sketcher.Constraint("Coincident", 7, 2, 0, 1),
    Sketcher.Constraint("Coincident", 8, 2, 9, 1),
    Sketcher.Constraint("Coincident", 9, 2, 10, 1),
    Sketcher.Constraint("Coincident", 10, 2, 11, 1),
    Sketcher.Constraint("Coincident", 11, 2, 12, 1),
    Sketcher.Constraint("Coincident", 12, 2, 13, 1),
    Sketcher.Constraint("Coincident", 13, 2, 14, 1),
    Sketcher.Constraint("Coincident", 14, 2, 15, 1),
    Sketcher.Constraint("Coincident", 15, 2, 8, 1),
    Sketcher.Constraint("Vertical", 0),
    Sketcher.Constraint("Horizontal", 1),
    Sketcher.Constraint("Vertical", 2),
    Sketcher.Constraint("Horizontal", 3),
    Sketcher.Constraint("Vertical", 4),
    Sketcher.Constraint("Horizontal", 5),
    Sketcher.Constraint("Vertical", 6),
    Sketcher.Constraint("Horizontal", 7),
    Sketcher.Constraint("Vertical", 8),
    Sketcher.Constraint("Horizontal", 9),
    Sketcher.Constraint("Vertical", 10),
    Sketcher.Constraint("Horizontal", 11),
    Sketcher.Constraint("Vertical", 12),
    Sketcher.Constraint("Horizontal", 13),
    Sketcher.Constraint("Vertical", 14),
    Sketcher.Constraint("Horizontal", 15),
    Sketcher.Constraint("Horizontal", 7, 2, 8, 2),
    Sketcher.Constraint("Horizontal", 5, 2, 10, 2),
    Sketcher.Constraint("Horizontal", 3, 2, 12, 2),
    Sketcher.Constraint("Horizontal", 1, 2, 14, 2),
    Sketcher.Constraint("Vertical", 2, 2, 5, 2),
    Sketcher.Constraint("Vertical", 10, 2, 13, 2),
    Sketcher.Constraint("Equal", 7, 9),
    Sketcher.Constraint("Equal", 5, 11),
    Sketcher.Constraint("Equal", 2, 6),
    Sketcher.Constraint("DistanceX", 1, 2, 1, 1, 5.0),
    Sketcher.Constraint("DistanceX", 3, 1, 3, 2, 6.5),
    Sketcher.Constraint("DistanceY", 0, 1, 0, 2, 1.6),
    Sketcher.Constraint("DistanceY", 2, 1, 2, 2, 1.5),
    Sketcher.Constraint("DistanceX", 8, 2, 7, 2, 52.0),
    Sketcher.Constraint("DistanceX", -1, 1, 0, 2, 45.0),
    Sketcher.Constraint("DistanceY", 0, 2, -1, 1, 46.0),
])
sketch11.setExpression("Constraints[41]", "Params.sketch11_width")
sketch11.setExpression("Constraints[42]", "Params.sketch11_width2")
sketch11.setExpression("Constraints[43]", "Params.sketch11_height")
sketch11.setExpression("Constraints[44]", "Params.sketch11_height2")
pad8 = body.newObject("PartDesign::Pad", "Pad007")
pad8.Profile = sketch11
pad8.setExpression("Length", "Params.pad8_length")
pad8.Reversed = True

# Sketch on YZ plane
sketch12 = body.newObject("Sketcher::SketchObject", "Sketch011")
sketch12.AttachmentSupport = (doc.getObject("YZ_Plane"), [""])
sketch12.MapMode = "FlatFace"
sketch12.addGeometry([
    Part.LineSegment(App.Vector(2, -60, 0), App.Vector(0, -60, 0)),
    Part.LineSegment(App.Vector(0, -60, 0), App.Vector(0, 0, 0)),
    Part.LineSegment(App.Vector(0, 0, 0), App.Vector(2, 0, 0)),
    Part.LineSegment(App.Vector(2, 0, 0), App.Vector(2, -60, 0)),
], False)
sketch12.addConstraint([
    Sketcher.Constraint("Coincident", 0, 2, 1, 1),
    Sketcher.Constraint("Coincident", 1, 2, 2, 1),
    Sketcher.Constraint("Coincident", 2, 2, 3, 1),
    Sketcher.Constraint("Coincident", 3, 2, 0, 1),
    Sketcher.Constraint("Horizontal", 0),
    Sketcher.Constraint("Vertical", 1),
    Sketcher.Constraint("Horizontal", 2),
    Sketcher.Constraint("Vertical", 3),
    Sketcher.Constraint("Coincident", 1, 2, -1, 1),
    Sketcher.Constraint("DistanceX", 0, 2, 0, 1, 2.0),
    Sketcher.Constraint("DistanceY", 1, 1, 1, 2, 60.0),
])
sketch12.setExpression("Constraints[9]", "Params.sketch12_width")
sketch12.setExpression("Constraints[10]", "Params.sketch12_height")
pad9 = body.newObject("PartDesign::Pad", "Pad008")
pad9.Profile = sketch12
pad9.setExpression("Length", "Params.pad9_length")
pad9.Reversed = True

# Sketch on XZ plane
sketch13 = body.newObject("Sketcher::SketchObject", "Sketch012")
sketch13.AttachmentSupport = (doc.getObject("XZ_Plane"), [""])
sketch13.MapMode = "FlatFace"
sketch13.AttachmentOffset = App.Placement(App.Vector(0, 0, -2), App.Rotation())
sketch13.addGeometry([
    Part.ArcOfCircle(Part.Circle(App.Vector(85, -55, 0), App.Vector(0, 0, 1), 5), math.radians(-90), math.radians(0)),  # 0
    Part.LineSegment(App.Vector(90, -55, 0), App.Vector(90, -60, 0)),  # 1
    Part.LineSegment(App.Vector(90, -60, 0), App.Vector(85, -60, 0)),  # 2
    Part.ArcOfCircle(Part.Circle(App.Vector(-6, -5, 0), App.Vector(0, 0, 1), 5), math.radians(90), math.radians(180)),  # 3
    Part.LineSegment(App.Vector(-10, -5, 0), App.Vector(-10, 0, 0)),  # 4
    Part.LineSegment(App.Vector(-10, 0, 0), App.Vector(-6, 0, 0)),  # 5
    Part.ArcOfCircle(Part.Circle(App.Vector(-6, -55, 0), App.Vector(0, 0, 1), 5), math.radians(180), math.radians(270)),  # 6
    Part.LineSegment(App.Vector(-6, -60, 0), App.Vector(-10, -60, 0)),  # 7
    Part.LineSegment(App.Vector(-10, -60, 0), App.Vector(-10, -55, 0)),  # 8
    Part.ArcOfCircle(Part.Circle(App.Vector(85, -5, 0), App.Vector(0, 0, 1), 5), math.radians(0), math.radians(90)),  # 9
    Part.LineSegment(App.Vector(85, 0, 0), App.Vector(90, 0, 0)),  # 10
    Part.LineSegment(App.Vector(90, 0, 0), App.Vector(90, -5, 0)),  # 11
], False)
sketch13.addConstraint([
    Sketcher.Constraint("Tangent", 0, 2, 1, 1),
    Sketcher.Constraint("Coincident", 1, 2, 2, 1),
    Sketcher.Constraint("Tangent", 2, 2, 0, 1),
    Sketcher.Constraint("Tangent", 3, 2, 4, 1),
    Sketcher.Constraint("Coincident", 4, 2, 5, 1),
    Sketcher.Constraint("Tangent", 5, 2, 3, 1),
    Sketcher.Constraint("Tangent", 6, 2, 7, 1),
    Sketcher.Constraint("Coincident", 7, 2, 8, 1),
    Sketcher.Constraint("Tangent", 8, 2, 6, 1),
    Sketcher.Constraint("Tangent", 9, 2, 10, 1),
    Sketcher.Constraint("Coincident", 10, 2, 11, 1),
    Sketcher.Constraint("Tangent", 11, 2, 9, 1),
    Sketcher.Constraint("Vertical", 1),
    Sketcher.Constraint("Horizontal", 2),
    Sketcher.Constraint("Vertical", 4),
    Sketcher.Constraint("Horizontal", 5),
    Sketcher.Constraint("Horizontal", 7),
    Sketcher.Constraint("Vertical", 8),
    Sketcher.Constraint("Horizontal", 10),
    Sketcher.Constraint("Vertical", 11),
    Sketcher.Constraint("Equal", 0, 3),
    Sketcher.Constraint("Equal", 3, 6),
    Sketcher.Constraint("Equal", 6, 9),
    Sketcher.Constraint("PointOnObject", 4, 2, -1),
    Sketcher.Constraint("PointOnObject", 9, 2, -1),
    Sketcher.Constraint("Horizontal", 0, 3, 6, 3),
    Sketcher.Constraint("Vertical", 3, 3, 6, 3),
    Sketcher.Constraint("Vertical", 0, 3, 9, 3),
    Sketcher.Constraint("Radius", 0, 5.0),
    Sketcher.Constraint("DistanceX", -1, 1, 0, 3, 85.0),
    Sketcher.Constraint("DistanceY", 0, 3, -1, 1, 55.0),
    Sketcher.Constraint("DistanceX", 3, 3, -1, 1, 5.5),
])
sketch13.setExpression("Constraints[28]", "Params.sketch13_radius")
pocket4 = body.newObject("PartDesign::Pocket", "Pocket003")
pocket4.Profile = sketch13
pocket4.Type = "ThroughAll"
pocket4.Reversed = True

doc.recompute()
